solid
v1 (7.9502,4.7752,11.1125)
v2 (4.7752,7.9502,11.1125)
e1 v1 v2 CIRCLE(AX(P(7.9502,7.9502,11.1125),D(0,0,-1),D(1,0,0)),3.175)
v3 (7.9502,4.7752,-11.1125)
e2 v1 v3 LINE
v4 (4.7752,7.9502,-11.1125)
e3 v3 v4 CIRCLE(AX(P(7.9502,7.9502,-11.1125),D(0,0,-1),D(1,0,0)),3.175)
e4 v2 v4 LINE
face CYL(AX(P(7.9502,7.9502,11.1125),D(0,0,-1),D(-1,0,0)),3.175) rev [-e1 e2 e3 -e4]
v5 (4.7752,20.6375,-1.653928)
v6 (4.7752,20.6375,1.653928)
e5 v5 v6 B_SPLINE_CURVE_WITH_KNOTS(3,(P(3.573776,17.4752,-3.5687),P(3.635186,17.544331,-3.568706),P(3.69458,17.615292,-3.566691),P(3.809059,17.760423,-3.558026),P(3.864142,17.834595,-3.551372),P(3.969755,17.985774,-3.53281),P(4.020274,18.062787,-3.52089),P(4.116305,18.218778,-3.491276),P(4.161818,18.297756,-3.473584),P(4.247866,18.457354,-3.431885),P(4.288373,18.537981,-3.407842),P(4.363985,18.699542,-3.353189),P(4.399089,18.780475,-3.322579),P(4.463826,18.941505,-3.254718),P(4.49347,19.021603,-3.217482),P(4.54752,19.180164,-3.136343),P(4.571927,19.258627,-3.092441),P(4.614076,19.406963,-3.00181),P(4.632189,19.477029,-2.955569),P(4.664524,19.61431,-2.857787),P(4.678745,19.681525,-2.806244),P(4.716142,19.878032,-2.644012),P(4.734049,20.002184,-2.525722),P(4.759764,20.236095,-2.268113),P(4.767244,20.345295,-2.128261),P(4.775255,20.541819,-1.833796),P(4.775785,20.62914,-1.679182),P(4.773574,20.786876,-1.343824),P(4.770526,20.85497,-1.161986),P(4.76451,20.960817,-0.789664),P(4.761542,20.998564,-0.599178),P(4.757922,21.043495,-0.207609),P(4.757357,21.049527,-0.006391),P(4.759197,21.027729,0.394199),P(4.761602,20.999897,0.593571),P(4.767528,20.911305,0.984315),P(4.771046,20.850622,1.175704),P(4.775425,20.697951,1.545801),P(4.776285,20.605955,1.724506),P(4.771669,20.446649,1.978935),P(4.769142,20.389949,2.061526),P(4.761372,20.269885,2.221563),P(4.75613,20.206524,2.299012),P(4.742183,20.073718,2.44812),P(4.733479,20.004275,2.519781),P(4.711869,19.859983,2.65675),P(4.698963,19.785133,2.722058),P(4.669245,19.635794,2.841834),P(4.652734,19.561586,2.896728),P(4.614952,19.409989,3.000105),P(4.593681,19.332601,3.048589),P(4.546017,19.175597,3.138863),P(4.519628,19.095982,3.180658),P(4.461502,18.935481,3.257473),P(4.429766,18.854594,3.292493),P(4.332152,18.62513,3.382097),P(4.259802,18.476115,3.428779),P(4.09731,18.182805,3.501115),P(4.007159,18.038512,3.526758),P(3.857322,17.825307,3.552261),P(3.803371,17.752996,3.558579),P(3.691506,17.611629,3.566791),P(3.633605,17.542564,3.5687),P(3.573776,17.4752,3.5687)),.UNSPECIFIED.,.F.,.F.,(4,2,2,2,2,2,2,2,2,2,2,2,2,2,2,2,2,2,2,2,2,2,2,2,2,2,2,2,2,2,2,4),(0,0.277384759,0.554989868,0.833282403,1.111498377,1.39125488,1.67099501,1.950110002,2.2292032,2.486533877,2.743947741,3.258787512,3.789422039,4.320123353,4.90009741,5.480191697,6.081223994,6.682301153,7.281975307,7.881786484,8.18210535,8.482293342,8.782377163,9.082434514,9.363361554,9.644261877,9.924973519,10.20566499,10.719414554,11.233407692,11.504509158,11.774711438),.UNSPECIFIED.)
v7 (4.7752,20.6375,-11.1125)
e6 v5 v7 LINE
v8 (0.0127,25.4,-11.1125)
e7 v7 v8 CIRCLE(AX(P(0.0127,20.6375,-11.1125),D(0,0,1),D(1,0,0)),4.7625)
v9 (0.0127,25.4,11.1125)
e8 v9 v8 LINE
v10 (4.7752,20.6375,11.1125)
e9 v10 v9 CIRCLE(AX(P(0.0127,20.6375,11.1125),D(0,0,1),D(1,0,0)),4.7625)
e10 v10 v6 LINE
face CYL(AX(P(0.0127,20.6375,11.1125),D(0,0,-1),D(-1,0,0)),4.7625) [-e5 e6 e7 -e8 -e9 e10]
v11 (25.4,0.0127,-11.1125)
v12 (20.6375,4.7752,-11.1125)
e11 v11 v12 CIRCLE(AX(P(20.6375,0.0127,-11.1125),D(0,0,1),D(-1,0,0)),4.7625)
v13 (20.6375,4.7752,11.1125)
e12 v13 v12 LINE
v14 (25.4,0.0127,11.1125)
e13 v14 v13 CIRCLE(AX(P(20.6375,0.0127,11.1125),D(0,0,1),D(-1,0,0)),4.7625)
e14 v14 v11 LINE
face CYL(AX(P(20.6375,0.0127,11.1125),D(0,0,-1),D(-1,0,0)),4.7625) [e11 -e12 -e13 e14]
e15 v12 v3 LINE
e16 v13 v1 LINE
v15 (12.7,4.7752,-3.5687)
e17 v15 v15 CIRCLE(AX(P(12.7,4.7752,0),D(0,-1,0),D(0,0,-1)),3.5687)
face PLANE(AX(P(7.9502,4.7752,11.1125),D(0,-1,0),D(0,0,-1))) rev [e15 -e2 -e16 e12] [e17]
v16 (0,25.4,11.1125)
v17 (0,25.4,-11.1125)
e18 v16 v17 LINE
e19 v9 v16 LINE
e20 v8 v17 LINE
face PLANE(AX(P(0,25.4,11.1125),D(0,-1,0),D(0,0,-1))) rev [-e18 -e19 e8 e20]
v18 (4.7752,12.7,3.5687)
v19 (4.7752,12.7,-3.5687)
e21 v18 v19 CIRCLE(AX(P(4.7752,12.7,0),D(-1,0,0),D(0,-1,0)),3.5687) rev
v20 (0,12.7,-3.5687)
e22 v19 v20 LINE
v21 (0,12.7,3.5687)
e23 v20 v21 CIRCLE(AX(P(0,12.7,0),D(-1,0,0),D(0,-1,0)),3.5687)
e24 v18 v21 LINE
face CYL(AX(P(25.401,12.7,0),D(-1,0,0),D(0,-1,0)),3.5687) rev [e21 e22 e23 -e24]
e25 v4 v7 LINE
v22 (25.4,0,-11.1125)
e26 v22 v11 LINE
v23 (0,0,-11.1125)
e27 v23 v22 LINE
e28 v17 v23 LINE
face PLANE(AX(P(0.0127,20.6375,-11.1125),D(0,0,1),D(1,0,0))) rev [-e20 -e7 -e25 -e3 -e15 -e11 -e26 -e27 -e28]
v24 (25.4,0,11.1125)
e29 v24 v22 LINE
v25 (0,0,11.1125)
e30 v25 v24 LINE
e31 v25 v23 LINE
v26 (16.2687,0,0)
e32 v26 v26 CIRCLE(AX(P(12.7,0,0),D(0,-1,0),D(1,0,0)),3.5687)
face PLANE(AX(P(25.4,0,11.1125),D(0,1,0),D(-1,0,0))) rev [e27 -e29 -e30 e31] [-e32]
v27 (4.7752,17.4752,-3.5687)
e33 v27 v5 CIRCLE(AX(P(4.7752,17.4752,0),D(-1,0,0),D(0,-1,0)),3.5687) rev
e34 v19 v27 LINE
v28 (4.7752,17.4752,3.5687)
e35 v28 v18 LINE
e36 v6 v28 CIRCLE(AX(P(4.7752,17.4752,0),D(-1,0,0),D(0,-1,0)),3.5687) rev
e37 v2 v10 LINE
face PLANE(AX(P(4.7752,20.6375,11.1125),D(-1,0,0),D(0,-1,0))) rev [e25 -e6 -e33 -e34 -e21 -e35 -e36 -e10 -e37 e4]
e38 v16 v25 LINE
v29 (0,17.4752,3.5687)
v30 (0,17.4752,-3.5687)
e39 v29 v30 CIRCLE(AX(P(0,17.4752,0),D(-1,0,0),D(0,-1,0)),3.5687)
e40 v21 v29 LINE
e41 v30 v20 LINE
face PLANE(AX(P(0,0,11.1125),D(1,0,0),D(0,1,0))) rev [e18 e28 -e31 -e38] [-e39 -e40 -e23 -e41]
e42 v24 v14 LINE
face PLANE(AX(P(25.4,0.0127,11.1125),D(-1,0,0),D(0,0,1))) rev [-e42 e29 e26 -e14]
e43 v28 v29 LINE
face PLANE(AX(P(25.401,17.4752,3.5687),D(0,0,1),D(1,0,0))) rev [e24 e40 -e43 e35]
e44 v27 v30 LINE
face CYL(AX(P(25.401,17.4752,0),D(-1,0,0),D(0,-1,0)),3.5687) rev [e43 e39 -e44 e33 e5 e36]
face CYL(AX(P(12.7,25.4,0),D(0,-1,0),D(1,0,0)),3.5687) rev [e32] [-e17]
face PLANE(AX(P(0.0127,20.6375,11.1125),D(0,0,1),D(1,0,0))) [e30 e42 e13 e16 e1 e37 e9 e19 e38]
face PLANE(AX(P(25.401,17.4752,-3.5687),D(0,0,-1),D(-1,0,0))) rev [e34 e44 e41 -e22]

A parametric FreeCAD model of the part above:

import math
import FreeCAD as App
import Part
import Sketcher

V = App.Vector
Q = App.Units.Quantity

doc = App.newDocument("Part")
body = doc.addObject("PartDesign::Body", "Body")

sketch1 = body.newObject("Sketcher::SketchObject", "Sketch")
sketch1.AttachmentSupport = (doc.getObject("XY_Plane"), [""])
sketch1.MapMode = "FlatFace"
sketch1.addGeometry([
    Part.LineSegment(V(0, 25.4, 0), V(0, 0, 0)),
    Part.LineSegment(V(0, 0, 0), V(25.4, 0, 0)),
    Part.LineSegment(V(25.4, 0, 0), V(25.4, 0.0127, 0)),
    Part.ArcOfCircle(Part.Circle(V(20.6375, 0.0127, 0), V(0, 0, 1), 4.7625), math.radians(0), math.radians(90)),
    Part.LineSegment(V(20.6375, 4.7752, 0), V(7.9502, 4.7752, 0)),
    Part.ArcOfCircle(Part.Circle(V(7.9502, 7.9502, 0), V(0, 0, 1), 3.175), math.radians(-180), math.radians(-90)),
    Part.LineSegment(V(4.7752, 7.9502, 0), V(4.7752, 20.6375, 0)),
    Part.ArcOfCircle(Part.Circle(V(0.0127, 20.6375, 0), V(0, 0, 1), 4.7625), math.radians(0), math.radians(90)),
    Part.LineSegment(V(0.0127, 25.4, 0), V(0, 25.4, 0)),
], False)
sketch1.addConstraint([
    Sketcher.Constraint("Coincident", 0, 2, 1, 1),
    Sketcher.Constraint("Coincident", 1, 2, 2, 1),
    Sketcher.Constraint("Tangent", 2, 2, 3, 1),
    Sketcher.Constraint("Tangent", 3, 2, 4, 1),
    Sketcher.Constraint("Tangent", 4, 2, 5, 2),
    Sketcher.Constraint("Tangent", 5, 1, 6, 1),
    Sketcher.Constraint("Tangent", 6, 2, 7, 1),
    Sketcher.Constraint("Tangent", 7, 2, 8, 1),
    Sketcher.Constraint("Coincident", 8, 2, 0, 1),
    Sketcher.Constraint("Vertical", 0),
    Sketcher.Constraint("Horizontal", 1),
    Sketcher.Constraint("Vertical", 2),
    Sketcher.Constraint("Horizontal", 4),
    Sketcher.Constraint("Vertical", 6),
    Sketcher.Constraint("Horizontal", 8),
    Sketcher.Constraint("Coincident", 0, 2, -1, 1),
    Sketcher.Constraint("Equal", 3, 7),
    Sketcher.Constraint("Equal", 1, 0),
    Sketcher.Constraint("Equal", 8, 2),
    Sketcher.Constraint("DistanceX", 1, 1, 1, 2, Q("1 in")),
    Sketcher.Constraint("Radius", 3, Q("0.1875 in")),
    Sketcher.Constraint("Radius", 5, Q("0.125 in")),
    Sketcher.Constraint("DistanceX", 4, 2, 4, 1, Q("0.4995 in")),
])
pad1 = body.newObject("PartDesign::Pad", "Pad")
pad1.Profile = sketch1
pad1.Length = Q("0.875 in")
pad1.Midplane = True

sketch2 = body.newObject("Sketcher::SketchObject", "Sketch001")
sketch2.AttachmentSupport = (doc.getObject("YZ_Plane"), [""])
sketch2.MapMode = "FlatFace"
sketch2.addGeometry([
    Part.LineSegment(V(17.4752, -3.5687, 0), V(12.7, -3.5687, 0)),
    Part.ArcOfCircle(Part.Circle(V(12.7, 0, 0), V(0, 0, 1), 3.5687), math.radians(90), math.radians(270)),
    Part.LineSegment(V(12.7, 3.5687, 0), V(17.4752, 3.5687, 0)),
    Part.ArcOfCircle(Part.Circle(V(17.4752, 0, 0), V(0, 0, 1), 3.5687), math.radians(-90), math.radians(90)),
], False)
sketch2.addConstraint([
    Sketcher.Constraint("Tangent", 0, 2, 1, 2),
    Sketcher.Constraint("Tangent", 1, 1, 2, 1),
    Sketcher.Constraint("Tangent", 2, 2, 3, 2),
    Sketcher.Constraint("Tangent", 3, 1, 0, 1),
    Sketcher.Constraint("Horizontal", 0),
    Sketcher.Constraint("Horizontal", 2),
    Sketcher.Constraint("PointOnObject", 1, 3, -1),
    Sketcher.Constraint("DistanceX", -1, 1, 1, 3, Q("0.5 in")),
    Sketcher.Constraint("Radius", 1, Q("0.1405 in")),
    Sketcher.Constraint("DistanceX", 0, 2, 0, 1, Q("0.188 in")),
])
pocket1 = body.newObject("PartDesign::Pocket", "Pocket")
pocket1.Profile = sketch2
pocket1.Type = "UpToFirst"
pocket1.Reversed = True

sketch3 = body.newObject("Sketcher::SketchObject", "Sketch002")
sketch3.AttachmentSupport = (doc.getObject("XZ_Plane"), [""])
sketch3.MapMode = "FlatFace"
sketch3.addGeometry(Part.Circle(V(12.7, 0, 0), V(0, 0, 1), 3.5687), False)
sketch3.addConstraint([
    Sketcher.Constraint("PointOnObject", 0, 3, -1),
    Sketcher.Constraint("Diameter", 0, Q("0.281 in")),
    Sketcher.Constraint("DistanceX", -1, 1, 0, 3, Q("0.5 in")),
])
pocket2 = body.newObject("PartDesign::Pocket", "Pocket001")
pocket2.Profile = sketch3
pocket2.Type = "ThroughAll"

doc.recompute()
